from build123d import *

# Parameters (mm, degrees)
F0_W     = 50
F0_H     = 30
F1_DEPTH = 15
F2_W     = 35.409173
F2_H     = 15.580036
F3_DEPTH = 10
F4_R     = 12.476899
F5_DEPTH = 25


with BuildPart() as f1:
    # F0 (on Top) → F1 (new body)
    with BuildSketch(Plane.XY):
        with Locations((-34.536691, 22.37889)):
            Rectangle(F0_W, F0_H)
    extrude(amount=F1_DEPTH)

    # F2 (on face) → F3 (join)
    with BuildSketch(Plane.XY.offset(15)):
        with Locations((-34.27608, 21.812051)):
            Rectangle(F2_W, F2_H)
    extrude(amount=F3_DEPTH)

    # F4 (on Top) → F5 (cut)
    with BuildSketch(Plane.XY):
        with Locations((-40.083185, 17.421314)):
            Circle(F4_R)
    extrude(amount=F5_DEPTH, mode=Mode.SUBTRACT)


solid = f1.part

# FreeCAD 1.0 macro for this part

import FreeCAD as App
import Part
import Sketcher

V = App.Vector

doc = App.newDocument("Part")
body = doc.addObject("PartDesign::Body", "Body")

# Sketch on XY plane
sketch1 = body.newObject("Sketcher::SketchObject", "Sketch")
sketch1.AttachmentSupport = (doc.getObject("XY_Plane"), [""])
sketch1.MapMode = "FlatFace"
sketch1.addGeometry([
    Part.LineSegment(V(-60, 37, 0), V(-60, 7, 0)),
    Part.LineSegment(V(-60, 7, 0), V(-10, 7, 0)),
    Part.LineSegment(V(-10, 7, 0), V(-10, 37, 0)),
    Part.LineSegment(V(-10, 37, 0), V(-60, 37, 0)),
], False)
sketch1.addConstraint([
    Sketcher.Constraint("Coincident", 0, 2, 1, 1),
    Sketcher.Constraint("Coincident", 1, 2, 2, 1),
    Sketcher.Constraint("Coincident", 2, 2, 3, 1),
    Sketcher.Constraint("Coincident", 3, 2, 0, 1),
    Sketcher.Constraint("Vertical", 0),
    Sketcher.Constraint("Horizontal", 1),
    Sketcher.Constraint("Vertical", 2),
    Sketcher.Constraint("Horizontal", 3),
    Sketcher.Constraint("DistanceX", 1, 1, 1, 2, 50.0),
    Sketcher.Constraint("DistanceY", 0, 2, 0, 1, 30.0),
    Sketcher.Constraint("DistanceX", 0, 2, -1, 1, 59.536691),
    Sketcher.Constraint("DistanceY", -1, 1, 0, 2, 7.37889),
])
pad1 = body.newObject("PartDesign::Pad", "Pad")
pad1.Profile = sketch1
pad1.Length = 15

# Sketch on XY plane
sketch2 = body.newObject("Sketcher::SketchObject", "Sketch001")
sketch2.AttachmentSupport = (doc.getObject("XY_Plane"), [""])
sketch2.MapMode = "FlatFace"
sketch2.AttachmentOffset = App.Placement(V(0, 0, 15), App.Rotation())
sketch2.addGeometry([
    Part.LineSegment(V(-52, 30, 0), V(-52, 14, 0)),
    Part.LineSegment(V(-52, 14, 0), V(-17, 14, 0)),
    Part.LineSegment(V(-17, 14, 0), V(-17, 30, 0)),
    Part.LineSegment(V(-17, 30, 0), V(-52, 30, 0)),
], False)
sketch2.addConstraint([
    Sketcher.Constraint("Coincident", 0, 2, 1, 1),
    Sketcher.Constraint("Coincident", 1, 2, 2, 1),
    Sketcher.Constraint("Coincident", 2, 2, 3, 1),
    Sketcher.Constraint("Coincident", 3, 2, 0, 1),
    Sketcher.Constraint("Vertical", 0),
    Sketcher.Constraint("Horizontal", 1),
    Sketcher.Constraint("Vertical", 2),
    Sketcher.Constraint("Horizontal", 3),
    Sketcher.Constraint("DistanceX", 1, 1, 1, 2, 35.409173),
    Sketcher.Constraint("DistanceY", 0, 2, 0, 1, 15.580036),
    Sketcher.Constraint("DistanceY", -1, 1, 2, 2, 29.602069),
    Sketcher.Constraint("DistanceX", 0, 2, -1, 1, 51.980666),
])
pad2 = body.newObject("PartDesign::Pad", "Pad001")
pad2.Profile = sketch2
pad2.Length = 10

# Sketch on XY plane
sketch3 = body.newObject("Sketcher::SketchObject", "Sketch002")
sketch3.AttachmentSupport = (doc.getObject("XY_Plane"), [""])
sketch3.MapMode = "FlatFace"
sketch3.addGeometry(Part.Circle(V(-40, 17, 0), V(0, 0, 1), 12), False)
sketch3.addConstraint([
    Sketcher.Constraint("Diameter", 0, 24.953798),
    Sketcher.Constraint("DistanceX", 0, 3, -1, 1, 40.083185),
    Sketcher.Constraint("DistanceY", -1, 1, 0, 3, 17.421314),
])
pocket1 = body.newObject("PartDesign::Pocket", "Pocket")
pocket1.Profile = sketch3
pocket1.Length = 25
pocket1.Reversed = True

doc.recompute()
